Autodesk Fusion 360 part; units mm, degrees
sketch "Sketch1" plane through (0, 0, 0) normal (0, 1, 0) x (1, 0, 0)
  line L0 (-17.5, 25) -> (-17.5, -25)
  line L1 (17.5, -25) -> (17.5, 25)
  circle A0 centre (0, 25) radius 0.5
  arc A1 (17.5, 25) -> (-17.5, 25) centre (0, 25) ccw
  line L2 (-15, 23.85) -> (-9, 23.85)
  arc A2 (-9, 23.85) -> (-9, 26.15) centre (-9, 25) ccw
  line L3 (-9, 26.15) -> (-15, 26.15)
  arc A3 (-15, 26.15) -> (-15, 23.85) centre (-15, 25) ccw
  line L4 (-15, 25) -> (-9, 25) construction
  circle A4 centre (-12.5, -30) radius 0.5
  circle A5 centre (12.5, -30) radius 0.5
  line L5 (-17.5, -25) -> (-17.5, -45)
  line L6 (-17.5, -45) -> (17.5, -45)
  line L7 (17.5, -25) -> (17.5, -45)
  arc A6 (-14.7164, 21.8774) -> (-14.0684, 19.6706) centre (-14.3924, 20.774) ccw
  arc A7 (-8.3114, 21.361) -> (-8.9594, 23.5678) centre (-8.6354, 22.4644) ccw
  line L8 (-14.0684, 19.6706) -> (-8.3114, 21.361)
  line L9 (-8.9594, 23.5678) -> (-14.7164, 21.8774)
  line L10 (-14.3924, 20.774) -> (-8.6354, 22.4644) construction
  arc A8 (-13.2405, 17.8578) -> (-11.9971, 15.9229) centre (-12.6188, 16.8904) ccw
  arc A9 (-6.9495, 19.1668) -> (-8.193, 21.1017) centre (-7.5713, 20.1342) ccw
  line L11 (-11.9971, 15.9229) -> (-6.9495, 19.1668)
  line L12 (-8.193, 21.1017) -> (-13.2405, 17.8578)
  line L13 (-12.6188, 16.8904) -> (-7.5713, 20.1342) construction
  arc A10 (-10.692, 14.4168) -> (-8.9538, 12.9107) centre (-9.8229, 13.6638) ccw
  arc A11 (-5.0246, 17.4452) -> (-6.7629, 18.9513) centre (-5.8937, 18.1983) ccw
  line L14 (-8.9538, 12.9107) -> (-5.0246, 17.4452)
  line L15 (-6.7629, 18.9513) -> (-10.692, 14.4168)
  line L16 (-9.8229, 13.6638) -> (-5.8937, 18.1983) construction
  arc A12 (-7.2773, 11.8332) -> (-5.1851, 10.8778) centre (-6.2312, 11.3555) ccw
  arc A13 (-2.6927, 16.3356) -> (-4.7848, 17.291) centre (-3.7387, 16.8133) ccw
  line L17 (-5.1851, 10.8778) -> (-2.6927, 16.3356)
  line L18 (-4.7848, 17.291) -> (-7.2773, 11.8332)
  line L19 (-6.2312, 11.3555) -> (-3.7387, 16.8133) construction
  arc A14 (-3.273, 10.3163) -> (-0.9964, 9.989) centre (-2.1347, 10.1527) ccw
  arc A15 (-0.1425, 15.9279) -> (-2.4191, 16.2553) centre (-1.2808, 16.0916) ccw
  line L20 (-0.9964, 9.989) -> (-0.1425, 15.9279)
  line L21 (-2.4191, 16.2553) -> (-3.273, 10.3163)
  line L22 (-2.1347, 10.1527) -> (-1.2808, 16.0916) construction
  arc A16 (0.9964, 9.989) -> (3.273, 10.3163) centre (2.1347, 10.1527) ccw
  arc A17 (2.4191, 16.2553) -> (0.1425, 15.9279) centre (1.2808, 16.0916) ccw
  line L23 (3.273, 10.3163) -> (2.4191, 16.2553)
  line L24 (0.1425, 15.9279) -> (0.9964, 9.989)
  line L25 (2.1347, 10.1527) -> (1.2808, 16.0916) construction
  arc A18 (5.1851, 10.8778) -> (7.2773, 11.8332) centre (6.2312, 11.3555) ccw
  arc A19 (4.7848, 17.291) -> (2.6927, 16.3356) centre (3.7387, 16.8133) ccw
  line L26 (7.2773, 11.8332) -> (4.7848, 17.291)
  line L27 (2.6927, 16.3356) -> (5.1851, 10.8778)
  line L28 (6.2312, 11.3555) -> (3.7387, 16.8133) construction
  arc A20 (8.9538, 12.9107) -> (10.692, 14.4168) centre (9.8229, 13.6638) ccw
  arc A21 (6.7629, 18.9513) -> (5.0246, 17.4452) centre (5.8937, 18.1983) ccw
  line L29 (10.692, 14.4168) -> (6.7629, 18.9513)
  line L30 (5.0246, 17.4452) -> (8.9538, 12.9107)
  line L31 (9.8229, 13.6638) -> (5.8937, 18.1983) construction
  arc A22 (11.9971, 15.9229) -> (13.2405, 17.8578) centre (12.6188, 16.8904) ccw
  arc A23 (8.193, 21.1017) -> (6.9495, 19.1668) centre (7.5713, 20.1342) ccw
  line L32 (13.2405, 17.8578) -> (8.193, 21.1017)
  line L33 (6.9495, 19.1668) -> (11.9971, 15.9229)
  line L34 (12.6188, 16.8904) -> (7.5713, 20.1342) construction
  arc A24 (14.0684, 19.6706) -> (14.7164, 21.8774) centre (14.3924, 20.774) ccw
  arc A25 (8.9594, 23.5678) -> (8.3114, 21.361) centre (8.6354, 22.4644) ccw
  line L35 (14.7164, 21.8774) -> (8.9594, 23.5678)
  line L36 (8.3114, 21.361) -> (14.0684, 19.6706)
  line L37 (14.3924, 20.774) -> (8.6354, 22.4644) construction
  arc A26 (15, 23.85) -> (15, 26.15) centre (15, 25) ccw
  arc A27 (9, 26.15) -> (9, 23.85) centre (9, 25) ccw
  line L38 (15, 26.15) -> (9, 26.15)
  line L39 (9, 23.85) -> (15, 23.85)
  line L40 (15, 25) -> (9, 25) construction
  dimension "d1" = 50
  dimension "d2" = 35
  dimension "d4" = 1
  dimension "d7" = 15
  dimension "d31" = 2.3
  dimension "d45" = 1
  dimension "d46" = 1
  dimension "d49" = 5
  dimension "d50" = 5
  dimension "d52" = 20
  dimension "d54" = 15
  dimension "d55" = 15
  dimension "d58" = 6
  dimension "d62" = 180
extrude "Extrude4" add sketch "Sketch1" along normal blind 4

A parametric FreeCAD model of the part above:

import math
import FreeCAD as App
import Part
import Sketcher
Q = App.Units.Quantity

doc = App.newDocument("Part")
body = doc.addObject("PartDesign::Body", "Body")

sketch1 = doc.addObject("Sketcher::SketchObject", "Sketch")
body.addObject(sketch1)
sketch1.AttachmentSupport = (doc.XZ_Plane, [""])
sketch1.MapMode = "FlatFace"
sketch1.addGeometry([
    Part.ArcOfCircle(Part.Circle(App.Vector(0, -25, 0), App.Vector(0, 0, 1), 17.5), math.radians(180), math.radians(360)),
    Part.LineSegment(App.Vector(-17.5, -25, 0), App.Vector(-17.5, 45, 0)),
    Part.LineSegment(App.Vector(-17.5, 45, 0), App.Vector(17.5, 45, 0)),
    Part.LineSegment(App.Vector(17.5, 45, 0), App.Vector(17.5, -25, 0)),
    Part.Circle(App.Vector(-12.5, 30, 0), App.Vector(0, 0, 1), 0.5),
    Part.Circle(App.Vector(12.5, 30, 0), App.Vector(0, 0, 1), 0.5),
    Part.ArcOfCircle(Part.Circle(App.Vector(-12.6188, -16.8904, 0), App.Vector(0, 0, 1), 1.149945), math.radians(57.27585), math.radians(237.273156)),
    Part.LineSegment(App.Vector(-13.2405, -17.8578, 0), App.Vector(-8.193, -21.1017, 0)),
    Part.ArcOfCircle(Part.Circle(App.Vector(-7.5713, -20.1342, 0), App.Vector(0, 0, 1), 1.149999), math.radians(-122.72415), math.radians(57.268965)),
    Part.LineSegment(App.Vector(-6.9495, -19.1668, 0), App.Vector(-11.9971, -15.9229, 0)),
    Part.ArcOfCircle(Part.Circle(App.Vector(-6.2312, -11.3555, 0), App.Vector(0, 0, 1), 1.15001), math.radians(24.543739), math.radians(204.543739)),
    Part.LineSegment(App.Vector(-7.2773, -11.8332, 0), App.Vector(-4.7848, -17.291, 0)),
    Part.ArcOfCircle(Part.Circle(App.Vector(-3.7387, -16.8133, 0), App.Vector(0, 0, 1), 1.149919), math.radians(-155.456261), math.radians(24.545808)),
    Part.LineSegment(App.Vector(-2.6927, -16.3356, 0), App.Vector(-5.1851, -10.8778, 0)),
    Part.ArcOfCircle(Part.Circle(App.Vector(-9.8229, -13.6638, 0), App.Vector(0, 0, 1), 1.149932), math.radians(40.909865), math.radians(220.9061)),
    Part.LineSegment(App.Vector(-10.692, -14.4168, 0), App.Vector(-6.7629, -18.9513, 0)),
    Part.ArcOfCircle(Part.Circle(App.Vector(-5.8937, -18.1983, 0), App.Vector(0, 0, 1), 1.149998), math.radians(-139.097163), math.radians(40.909865)),
    Part.LineSegment(App.Vector(-5.0246, -17.4452, 0), App.Vector(-8.9538, -12.9107, 0)),
    Part.ArcOfCircle(Part.Circle(App.Vector(-2.1347, -10.1527, 0), App.Vector(0, 0, 1), 1.149996), math.radians(8.183651), math.radians(188.17872)),
    Part.LineSegment(App.Vector(-3.273, -10.3163, 0), App.Vector(-2.4191, -16.2553, 0)),
    Part.ArcOfCircle(Part.Circle(App.Vector(-1.2808, -16.0916, 0), App.Vector(0, 0, 1), 1.150011), math.radians(-171.816349), math.radians(8.183651)),
    Part.LineSegment(App.Vector(-0.1425, -15.9279, 0), App.Vector(-0.9964, -9.989, 0)),
    Part.ArcOfCircle(Part.Circle(App.Vector(-14.3924, -20.774, 0), App.Vector(0, 0, 1), 1.149986), math.radians(73.635765), math.radians(253.635765)),
    Part.LineSegment(App.Vector(-14.7164, -21.8774, 0), App.Vector(-8.9594, -23.5678, 0)),
    Part.ArcOfCircle(Part.Circle(App.Vector(-8.6354, -22.4644, 0), App.Vector(0, 0, 1), 1.149986), math.radians(-106.364235), math.radians(73.635765)),
    Part.LineSegment(App.Vector(-8.3114, -21.361, 0), App.Vector(-14.0684, -19.6706, 0)),
    Part.LineSegment(App.Vector(-9, -23.85, 0), App.Vector(-15, -23.85, 0)),
    Part.ArcOfCircle(Part.Circle(App.Vector(-15, -25, 0), App.Vector(0, 0, 1), 1.15), math.radians(90), math.radians(270)),
    Part.LineSegment(App.Vector(-15, -26.15, 0), App.Vector(-9, -26.15, 0)),
    Part.ArcOfCircle(Part.Circle(App.Vector(-9, -25, 0), App.Vector(0, 0, 1), 1.15), math.radians(-90), math.radians(90)),
    Part.ArcOfCircle(Part.Circle(App.Vector(2.1347, -10.1527, 0), App.Vector(0, 0, 1), 1.150011), math.radians(-8.17872), math.radians(171.816349)),
    Part.LineSegment(App.Vector(0.9964, -9.989, 0), App.Vector(0.1425, -15.9279, 0)),
    Part.ArcOfCircle(Part.Circle(App.Vector(1.2808, -16.0916, 0), App.Vector(0, 0, 1), 1.150011), math.radians(171.816349), math.radians(351.816349)),
    Part.LineSegment(App.Vector(2.4191, -16.2553, 0), App.Vector(3.273, -10.3163, 0)),
    Part.ArcOfCircle(Part.Circle(App.Vector(6.2312, -11.3555, 0), App.Vector(0, 0, 1), 1.15001), math.radians(-24.543739), math.radians(155.456261)),
    Part.LineSegment(App.Vector(5.1851, -10.8778, 0), App.Vector(2.6927, -16.3356, 0)),
    Part.ArcOfCircle(Part.Circle(App.Vector(3.7387, -16.8133, 0), App.Vector(0, 0, 1), 1.15001), math.radians(155.454192), math.radians(335.456261)),
    Part.LineSegment(App.Vector(4.7848, -17.291, 0), App.Vector(7.2773, -11.8332, 0)),
    Part.ArcOfCircle(Part.Circle(App.Vector(9.8229, -13.6638, 0), App.Vector(0, 0, 1), 1.149998), math.radians(-40.9061), math.radians(139.090135)),
    Part.LineSegment(App.Vector(8.9538, -12.9107, 0), App.Vector(5.0246, -17.4452, 0)),
    Part.ArcOfCircle(Part.Circle(App.Vector(5.8937, -18.1983, 0), App.Vector(0, 0, 1), 1.150008), math.radians(139.090135), math.radians(319.097163)),
    Part.LineSegment(App.Vector(6.7629, -18.9513, 0), App.Vector(10.692, -14.4168, 0)),
    Part.ArcOfCircle(Part.Circle(App.Vector(12.6188, -16.8904, 0), App.Vector(0, 0, 1), 1.150029), math.radians(-57.273156), math.radians(122.72415)),
    Part.LineSegment(App.Vector(11.9971, -15.9229, 0), App.Vector(6.9495, -19.1668, 0)),
    Part.ArcOfCircle(Part.Circle(App.Vector(7.5713, -20.1342, 0), App.Vector(0, 0, 1), 1.150029), math.radians(122.731035), math.radians(302.72415)),
    Part.LineSegment(App.Vector(8.193, -21.1017, 0), App.Vector(13.2405, -17.8578, 0)),
    Part.Circle(App.Vector(0, -25, 0), App.Vector(0, 0, 1), 0.5),
    Part.ArcOfCircle(Part.Circle(App.Vector(14.3924, -20.774, 0), App.Vector(0, 0, 1), 1.149986), math.radians(-73.635765), math.radians(106.364235)),
    Part.LineSegment(App.Vector(14.0684, -19.6706, 0), App.Vector(8.3114, -21.361, 0)),
    Part.ArcOfCircle(Part.Circle(App.Vector(8.6354, -22.4644, 0), App.Vector(0, 0, 1), 1.149986), math.radians(106.364235), math.radians(286.364235)),
    Part.LineSegment(App.Vector(8.9594, -23.5678, 0), App.Vector(14.7164, -21.8774, 0)),
    Part.ArcOfCircle(Part.Circle(App.Vector(15, -25, 0), App.Vector(0, 0, 1), 1.15), math.radians(-90), math.radians(90)),
    Part.LineSegment(App.Vector(15, -23.85, 0), App.Vector(9, -23.85, 0)),
    Part.ArcOfCircle(Part.Circle(App.Vector(9, -25, 0), App.Vector(0, 0, 1), 1.15), math.radians(90), math.radians(270)),
    Part.LineSegment(App.Vector(9, -26.15, 0), App.Vector(15, -26.15, 0)),
], False)
sketch1.addConstraint([
    Sketcher.Constraint("Tangent", 0, 1, 1, 1),
    Sketcher.Constraint("Coincident", 1, 2, 2, 1),
    Sketcher.Constraint("Coincident", 2, 2, 3, 1),
    Sketcher.Constraint("Tangent", 3, 2, 0, 2),
    Sketcher.Constraint("Tangent", 6, 2, 7, 1),
    Sketcher.Constraint("Tangent", 7, 2, 8, 1),
    Sketcher.Constraint("Tangent", 8, 2, 9, 1),
    Sketcher.Constraint("Tangent", 9, 2, 6, 1),
    Sketcher.Constraint("Tangent", 10, 2, 11, 1),
    Sketcher.Constraint("Tangent", 11, 2, 12, 1),
    Sketcher.Constraint("Tangent", 12, 2, 13, 1),
    Sketcher.Constraint("Tangent", 13, 2, 10, 1),
    Sketcher.Constraint("Tangent", 14, 2, 15, 1),
    Sketcher.Constraint("Tangent", 15, 2, 16, 1),
    Sketcher.Constraint("Tangent", 16, 2, 17, 1),
    Sketcher.Constraint("Tangent", 17, 2, 14, 1),
    Sketcher.Constraint("Tangent", 18, 2, 19, 1),
    Sketcher.Constraint("Tangent", 19, 2, 20, 1),
    Sketcher.Constraint("Tangent", 20, 2, 21, 1),
    Sketcher.Constraint("Tangent", 21, 2, 18, 1),
    Sketcher.Constraint("Tangent", 22, 2, 23, 1),
    Sketcher.Constraint("Tangent", 23, 2, 24, 1),
    Sketcher.Constraint("Tangent", 24, 2, 25, 1),
    Sketcher.Constraint("Tangent", 25, 2, 22, 1),
    Sketcher.Constraint("Tangent", 26, 2, 27, 1),
    Sketcher.Constraint("Tangent", 27, 2, 28, 1),
    Sketcher.Constraint("Tangent", 28, 2, 29, 1),
    Sketcher.Constraint("Tangent", 29, 2, 26, 1),
    Sketcher.Constraint("Tangent", 30, 2, 31, 1),
    Sketcher.Constraint("Tangent", 31, 2, 32, 1),
    Sketcher.Constraint("Tangent", 32, 2, 33, 1),
    Sketcher.Constraint("Tangent", 33, 2, 30, 1),
    Sketcher.Constraint("Tangent", 34, 2, 35, 1),
    Sketcher.Constraint("Tangent", 35, 2, 36, 1),
    Sketcher.Constraint("Tangent", 36, 2, 37, 1),
    Sketcher.Constraint("Tangent", 37, 2, 34, 1),
    Sketcher.Constraint("Tangent", 38, 2, 39, 1),
    Sketcher.Constraint("Tangent", 39, 2, 40, 1),
    Sketcher.Constraint("Tangent", 40, 2, 41, 1),
    Sketcher.Constraint("Tangent", 41, 2, 38, 1),
    Sketcher.Constraint("Tangent", 42, 2, 43, 1),
    Sketcher.Constraint("Tangent", 43, 2, 44, 1),
    Sketcher.Constraint("Tangent", 44, 2, 45, 1),
    Sketcher.Constraint("Tangent", 45, 2, 42, 1),
    Sketcher.Constraint("Tangent", 47, 2, 48, 1),
    Sketcher.Constraint("Tangent", 48, 2, 49, 1),
    Sketcher.Constraint("Tangent", 49, 2, 50, 1),
    Sketcher.Constraint("Tangent", 50, 2, 47, 1),
    Sketcher.Constraint("Tangent", 51, 2, 52, 1),
    Sketcher.Constraint("Tangent", 52, 2, 53, 1),
    Sketcher.Constraint("Tangent", 53, 2, 54, 1),
    Sketcher.Constraint("Tangent", 54, 2, 51, 1),
    Sketcher.Constraint("Vertical", 1),
    Sketcher.Constraint("Horizontal", 2),
    Sketcher.Constraint("Vertical", 3),
    Sketcher.Constraint("Horizontal", 26),
    Sketcher.Constraint("Horizontal", 28),
    Sketcher.Constraint("Horizontal", 52),
    Sketcher.Constraint("Horizontal", 54),
    Sketcher.Constraint("Coincident", 46, 3, 0, 3),
    Sketcher.Constraint("Equal", 4, 5),
    Sketcher.Constraint("Equal", 6, 8),
    Sketcher.Constraint("Equal", 8, 10),
    Sketcher.Constraint("Equal", 10, 12),
    Sketcher.Constraint("Equal", 12, 14),
    Sketcher.Constraint("Equal", 14, 16),
    Sketcher.Constraint("Equal", 16, 18),
    Sketcher.Constraint("Equal", 18, 20),
    Sketcher.Constraint("Equal", 20, 22),
    Sketcher.Constraint("Equal", 22, 24),
    Sketcher.Constraint("Equal", 24, 27),
    Sketcher.Constraint("Equal", 29, 30),
    Sketcher.Constraint("Equal", 30, 32),
    Sketcher.Constraint("Equal", 32, 34),
    Sketcher.Constraint("Equal", 34, 36),
    Sketcher.Constraint("Equal", 36, 38),
    Sketcher.Constraint("Equal", 38, 40),
    Sketcher.Constraint("Equal", 40, 42),
    Sketcher.Constraint("Equal", 42, 44),
    Sketcher.Constraint("Equal", 5, 46),
    Sketcher.Constraint("Equal", 44, 47),
    Sketcher.Constraint("Equal", 47, 49),
    Sketcher.Constraint("Equal", 49, 51),
    Sketcher.Constraint("Symmetric", 4, 3, 5, 3, -2),
    Sketcher.Constraint("Symmetric", 18, 3, 30, 3, -2),
    Sketcher.Constraint("Symmetric", 20, 3, 32, 3, -2),
    Sketcher.Constraint("Symmetric", 10, 3, 34, 3, -2),
    Sketcher.Constraint("Symmetric", 12, 3, 36, 3, -2),
    Sketcher.Constraint("Symmetric", 14, 3, 38, 3, -2),
    Sketcher.Constraint("Symmetric", 16, 3, 40, 3, -2),
    Sketcher.Constraint("Symmetric", 6, 3, 42, 3, -2),
    Sketcher.Constraint("Symmetric", 8, 3, 44, 3, -2),
    Sketcher.Constraint("Symmetric", 22, 3, 47, 3, -2),
    Sketcher.Constraint("Symmetric", 24, 3, 49, 3, -2),
    Sketcher.Constraint("Symmetric", 27, 3, 51, 3, -2),
    Sketcher.Constraint("PointOnObject", 0, 3, -2),
    Sketcher.Constraint("Horizontal", 0, 3, 27, 3),
    Sketcher.Constraint("Equal", 28, 52),
    Sketcher.Constraint("Equal", 9, 11),
    Sketcher.Constraint("Equal", 13, 15),
    Sketcher.Constraint("Equal", 17, 19),
    Sketcher.Constraint("Equal", 21, 23),
    Sketcher.Constraint("Diameter", 4, Q("1 mm")),
    Sketcher.Constraint("Radius", 0, Q("17.5 mm")),
    Sketcher.Constraint("DistanceX", 26, 2, 26, 1, Q("6 mm")),
    Sketcher.Constraint("Radius", 6, Q("1.15 mm")),
    Sketcher.Constraint("Distance", 7, Q("6 mm")),
    Sketcher.Constraint("DistanceX", 27, 3, -1, 1, Q("15 mm")),
    Sketcher.Constraint("DistanceY", 1, 1, 1, 2, Q("70 mm")),
    Sketcher.Constraint("DistanceY", 0, 3, -1, 1, Q("25 mm")),
    Sketcher.Constraint("DistanceY", -1, 1, 4, 3, Q("30 mm")),
    Sketcher.Constraint("DistanceX", 4, 3, -1, 1, Q("12.5 mm")),
    Sketcher.Constraint("Angle", 17, Q("130.9093 deg")),
    Sketcher.Constraint("DistanceX", 14, 3, -1, 1, Q("9.823 mm")),
    Sketcher.Constraint("DistanceY", 22, 3, -1, 1, Q("20.774 mm")),
    Sketcher.Constraint("DistanceX", 7, 2, -1, 1, Q("8.193 mm")),
    Sketcher.Constraint("DistanceX", 9, 2, -1, 1, Q("11.997 mm")),
    Sketcher.Constraint("DistanceY", 9, 2, -1, 1, Q("15.923 mm")),
    Sketcher.Constraint("DistanceY", 11, 2, -1, 1, Q("17.291 mm")),
    Sketcher.Constraint("DistanceX", 13, 2, -1, 1, Q("5.185 mm")),
    Sketcher.Constraint("DistanceX", 18, 2, -1, 1, Q("3.273 mm")),
    Sketcher.Constraint("DistanceX", 19, 2, -1, 1, Q("2.419 mm")),
    Sketcher.Constraint("DistanceY", 20, 2, -1, 1, Q("15.928 mm")),
    Sketcher.Constraint("DistanceY", 24, 2, -1, 1, Q("21.361 mm")),
    Sketcher.Constraint("DistanceX", 10, 3, -1, 1, Q("6.2312 mm")),
    Sketcher.Constraint("DistanceY", 14, 3, -1, 1, Q("13.6638 mm")),
    Sketcher.Constraint("DistanceX", 22, 3, -1, 1, Q("14.3924 mm")),
])
pad1 = doc.addObject("PartDesign::Pad", "Pad")
body.addObject(pad1)
pad1.Profile = sketch1
pad1.Length = 4
pad1.Reversed = True

doc.recompute()
